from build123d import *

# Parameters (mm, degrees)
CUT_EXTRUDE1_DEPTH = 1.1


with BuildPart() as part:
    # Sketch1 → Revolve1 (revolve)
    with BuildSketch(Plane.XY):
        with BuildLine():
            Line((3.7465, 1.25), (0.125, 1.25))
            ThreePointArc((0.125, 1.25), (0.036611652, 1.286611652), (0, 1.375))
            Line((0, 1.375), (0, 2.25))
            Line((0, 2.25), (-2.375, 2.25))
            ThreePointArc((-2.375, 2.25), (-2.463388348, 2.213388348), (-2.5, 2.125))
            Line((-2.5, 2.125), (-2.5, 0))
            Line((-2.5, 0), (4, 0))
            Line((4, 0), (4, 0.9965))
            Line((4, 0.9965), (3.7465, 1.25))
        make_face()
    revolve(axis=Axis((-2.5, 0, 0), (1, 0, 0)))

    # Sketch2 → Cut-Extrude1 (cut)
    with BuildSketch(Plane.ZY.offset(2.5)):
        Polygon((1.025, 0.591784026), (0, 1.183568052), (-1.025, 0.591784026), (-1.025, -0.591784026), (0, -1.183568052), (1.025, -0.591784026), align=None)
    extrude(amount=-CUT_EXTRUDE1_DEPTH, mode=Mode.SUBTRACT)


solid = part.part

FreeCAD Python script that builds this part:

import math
import FreeCAD as App
import Part
import Sketcher
from FreeCAD import Vector
Q = App.Units.Quantity


def add_polygon(sketch, points):
    """Adds a closed chain of lines whose ends are joined by coincident constraints."""
    first, n = sketch.GeometryCount, len(points)
    for a, b in zip(points, points[1:] + points[:1]):
        sketch.addGeometry(Part.LineSegment(App.Vector(*a, 0), App.Vector(*b, 0)), False)
    for i in range(n):
        sketch.addConstraint(Sketcher.Constraint("Coincident", first + i, 2, first + (i + 1) % n, 1))

doc = App.newDocument("Part")
body = doc.addObject("PartDesign::Body", "Body")

sketch1 = body.newObject("Sketcher::SketchObject", "Sketch")
sketch1.AttachmentSupport = (doc.getObject("XY_Plane"), [""])
sketch1.MapMode = "FlatFace"
sketch1.addGeometry(Part.LineSegment(Vector(3.75, 1.25, 0), Vector(0.12, 1.25, 0)), False)
sketch1.addGeometry(Part.ArcOfCircle(Part.Circle(Vector(0.12, 1.37, 0), Vector(0, 0, 1), 0.12), math.radians(180), math.radians(270)), False)
sketch1.addGeometry(Part.LineSegment(Vector(0, 1.38, 0), Vector(0, 2.25, 0)), False)
sketch1.addGeometry(Part.LineSegment(Vector(0, 2.25, 0), Vector(-2.38, 2.25, 0)), False)
sketch1.addGeometry(Part.ArcOfCircle(Part.Circle(Vector(-2.38, 2.13, 0), Vector(0, 0, 1), 0.12), math.radians(90), math.radians(180)), False)
sketch1.addGeometry(Part.LineSegment(Vector(-2.5, 2.12, 0), Vector(-2.5, 0, 0)), False)
sketch1.addGeometry(Part.LineSegment(Vector(-2.5, 0, 0), Vector(4, 0, 0)), False)
sketch1.addGeometry(Part.LineSegment(Vector(4, 0, 0), Vector(4, 1, 0)), False)
sketch1.addGeometry(Part.LineSegment(Vector(4, 1, 0), Vector(3.75, 1.25, 0)), False)
sketch1.addConstraint(Sketcher.Constraint("Tangent", 0, 2, 1, 2))
sketch1.addConstraint(Sketcher.Constraint("Tangent", 1, 1, 2, 1))
sketch1.addConstraint(Sketcher.Constraint("Coincident", 2, 2, 3, 1))
sketch1.addConstraint(Sketcher.Constraint("Tangent", 3, 2, 4, 1))
sketch1.addConstraint(Sketcher.Constraint("Tangent", 4, 2, 5, 1))
sketch1.addConstraint(Sketcher.Constraint("Coincident", 5, 2, 6, 1))
sketch1.addConstraint(Sketcher.Constraint("Coincident", 6, 2, 7, 1))
sketch1.addConstraint(Sketcher.Constraint("Coincident", 7, 2, 8, 1))
sketch1.addConstraint(Sketcher.Constraint("Coincident", 8, 2, 0, 1))
sketch1.addConstraint(Sketcher.Constraint("Horizontal", 0))
sketch1.addConstraint(Sketcher.Constraint("Vertical", 2))
sketch1.addConstraint(Sketcher.Constraint("Horizontal", 3))
sketch1.addConstraint(Sketcher.Constraint("Vertical", 5))
sketch1.addConstraint(Sketcher.Constraint("Horizontal", 6))
sketch1.addConstraint(Sketcher.Constraint("Vertical", 7))
sketch1.addConstraint(Sketcher.Constraint("Equal", 1, 4))
sketch1.addConstraint(Sketcher.Constraint("PointOnObject", 1, 1, -2))
sketch1.addConstraint(Sketcher.Constraint("PointOnObject", 5, 2, -1))
sketch1.addConstraint(Sketcher.Constraint("Angle", 8, Q("135 deg")))
sketch1.addConstraint(Sketcher.Constraint("DistanceX", 6, 1, 6, 2, 6.5))
sketch1.addConstraint(Sketcher.Constraint("DistanceX", -1, 1, 6, 2, 4.0))
sketch1.addConstraint(Sketcher.Constraint("Radius", 1, 0.125))
sketch1.addConstraint(Sketcher.Constraint("DistanceY", 0, 2, 2, 2, 1.0))
sketch1.addConstraint(Sketcher.Constraint("DistanceY", 5, 2, 5, 1, 2.125))
sketch1.addConstraint(Sketcher.Constraint("DistanceX", 0, 2, 0, 1, 3.6215))
revolution = body.newObject("PartDesign::Revolution", "Revolution")
revolution.Profile = sketch1
revolution.ReferenceAxis = (sketch1, ["H_Axis"])
revolution.Angle = 360

sketch2 = body.newObject("Sketcher::SketchObject", "Sketch001")
sketch2.AttachmentSupport = (doc.getObject("YZ_Plane"), [""])
sketch2.MapMode = "FlatFace"
sketch2.AttachmentOffset = App.Placement(Vector(0, 0, -2.5), App.Rotation())
add_polygon(sketch2, [(0.6, 1), (1.2, 0), (0.6, -1), (-0.6, -1), (-1.2, 0), (-0.6, 1)])
sketch2.addConstraint(Sketcher.Constraint("Horizontal", 2))
sketch2.addConstraint(Sketcher.Constraint("Horizontal", 5))
sketch2.addConstraint(Sketcher.Constraint("Symmetric", 0, 2, 3, 2, -1, 1))
sketch2.addConstraint(Sketcher.Constraint("Symmetric", 1, 2, 4, 2, -1, 1))
sketch2.addConstraint(Sketcher.Constraint("PointOnObject", 0, 2, -1))
sketch2.addConstraint(Sketcher.Constraint("Parallel", 0, 3))
sketch2.addConstraint(Sketcher.Constraint("Vertical", 2, 2, 4, 2))
sketch2.addConstraint(Sketcher.Constraint("Angle", 0, Q("-60 deg")))
sketch2.addConstraint(Sketcher.Constraint("DistanceY", 2, 2, 4, 2, 2.05))
sketch2.addConstraint(Sketcher.Constraint("DistanceX", 2, 2, 2, 1, 1.183568))
pocket1 = body.newObject("PartDesign::Pocket", "Pocket")
pocket1.Profile = sketch2
pocket1.Length = 1.1
pocket1.Reversed = True

doc.recompute()
